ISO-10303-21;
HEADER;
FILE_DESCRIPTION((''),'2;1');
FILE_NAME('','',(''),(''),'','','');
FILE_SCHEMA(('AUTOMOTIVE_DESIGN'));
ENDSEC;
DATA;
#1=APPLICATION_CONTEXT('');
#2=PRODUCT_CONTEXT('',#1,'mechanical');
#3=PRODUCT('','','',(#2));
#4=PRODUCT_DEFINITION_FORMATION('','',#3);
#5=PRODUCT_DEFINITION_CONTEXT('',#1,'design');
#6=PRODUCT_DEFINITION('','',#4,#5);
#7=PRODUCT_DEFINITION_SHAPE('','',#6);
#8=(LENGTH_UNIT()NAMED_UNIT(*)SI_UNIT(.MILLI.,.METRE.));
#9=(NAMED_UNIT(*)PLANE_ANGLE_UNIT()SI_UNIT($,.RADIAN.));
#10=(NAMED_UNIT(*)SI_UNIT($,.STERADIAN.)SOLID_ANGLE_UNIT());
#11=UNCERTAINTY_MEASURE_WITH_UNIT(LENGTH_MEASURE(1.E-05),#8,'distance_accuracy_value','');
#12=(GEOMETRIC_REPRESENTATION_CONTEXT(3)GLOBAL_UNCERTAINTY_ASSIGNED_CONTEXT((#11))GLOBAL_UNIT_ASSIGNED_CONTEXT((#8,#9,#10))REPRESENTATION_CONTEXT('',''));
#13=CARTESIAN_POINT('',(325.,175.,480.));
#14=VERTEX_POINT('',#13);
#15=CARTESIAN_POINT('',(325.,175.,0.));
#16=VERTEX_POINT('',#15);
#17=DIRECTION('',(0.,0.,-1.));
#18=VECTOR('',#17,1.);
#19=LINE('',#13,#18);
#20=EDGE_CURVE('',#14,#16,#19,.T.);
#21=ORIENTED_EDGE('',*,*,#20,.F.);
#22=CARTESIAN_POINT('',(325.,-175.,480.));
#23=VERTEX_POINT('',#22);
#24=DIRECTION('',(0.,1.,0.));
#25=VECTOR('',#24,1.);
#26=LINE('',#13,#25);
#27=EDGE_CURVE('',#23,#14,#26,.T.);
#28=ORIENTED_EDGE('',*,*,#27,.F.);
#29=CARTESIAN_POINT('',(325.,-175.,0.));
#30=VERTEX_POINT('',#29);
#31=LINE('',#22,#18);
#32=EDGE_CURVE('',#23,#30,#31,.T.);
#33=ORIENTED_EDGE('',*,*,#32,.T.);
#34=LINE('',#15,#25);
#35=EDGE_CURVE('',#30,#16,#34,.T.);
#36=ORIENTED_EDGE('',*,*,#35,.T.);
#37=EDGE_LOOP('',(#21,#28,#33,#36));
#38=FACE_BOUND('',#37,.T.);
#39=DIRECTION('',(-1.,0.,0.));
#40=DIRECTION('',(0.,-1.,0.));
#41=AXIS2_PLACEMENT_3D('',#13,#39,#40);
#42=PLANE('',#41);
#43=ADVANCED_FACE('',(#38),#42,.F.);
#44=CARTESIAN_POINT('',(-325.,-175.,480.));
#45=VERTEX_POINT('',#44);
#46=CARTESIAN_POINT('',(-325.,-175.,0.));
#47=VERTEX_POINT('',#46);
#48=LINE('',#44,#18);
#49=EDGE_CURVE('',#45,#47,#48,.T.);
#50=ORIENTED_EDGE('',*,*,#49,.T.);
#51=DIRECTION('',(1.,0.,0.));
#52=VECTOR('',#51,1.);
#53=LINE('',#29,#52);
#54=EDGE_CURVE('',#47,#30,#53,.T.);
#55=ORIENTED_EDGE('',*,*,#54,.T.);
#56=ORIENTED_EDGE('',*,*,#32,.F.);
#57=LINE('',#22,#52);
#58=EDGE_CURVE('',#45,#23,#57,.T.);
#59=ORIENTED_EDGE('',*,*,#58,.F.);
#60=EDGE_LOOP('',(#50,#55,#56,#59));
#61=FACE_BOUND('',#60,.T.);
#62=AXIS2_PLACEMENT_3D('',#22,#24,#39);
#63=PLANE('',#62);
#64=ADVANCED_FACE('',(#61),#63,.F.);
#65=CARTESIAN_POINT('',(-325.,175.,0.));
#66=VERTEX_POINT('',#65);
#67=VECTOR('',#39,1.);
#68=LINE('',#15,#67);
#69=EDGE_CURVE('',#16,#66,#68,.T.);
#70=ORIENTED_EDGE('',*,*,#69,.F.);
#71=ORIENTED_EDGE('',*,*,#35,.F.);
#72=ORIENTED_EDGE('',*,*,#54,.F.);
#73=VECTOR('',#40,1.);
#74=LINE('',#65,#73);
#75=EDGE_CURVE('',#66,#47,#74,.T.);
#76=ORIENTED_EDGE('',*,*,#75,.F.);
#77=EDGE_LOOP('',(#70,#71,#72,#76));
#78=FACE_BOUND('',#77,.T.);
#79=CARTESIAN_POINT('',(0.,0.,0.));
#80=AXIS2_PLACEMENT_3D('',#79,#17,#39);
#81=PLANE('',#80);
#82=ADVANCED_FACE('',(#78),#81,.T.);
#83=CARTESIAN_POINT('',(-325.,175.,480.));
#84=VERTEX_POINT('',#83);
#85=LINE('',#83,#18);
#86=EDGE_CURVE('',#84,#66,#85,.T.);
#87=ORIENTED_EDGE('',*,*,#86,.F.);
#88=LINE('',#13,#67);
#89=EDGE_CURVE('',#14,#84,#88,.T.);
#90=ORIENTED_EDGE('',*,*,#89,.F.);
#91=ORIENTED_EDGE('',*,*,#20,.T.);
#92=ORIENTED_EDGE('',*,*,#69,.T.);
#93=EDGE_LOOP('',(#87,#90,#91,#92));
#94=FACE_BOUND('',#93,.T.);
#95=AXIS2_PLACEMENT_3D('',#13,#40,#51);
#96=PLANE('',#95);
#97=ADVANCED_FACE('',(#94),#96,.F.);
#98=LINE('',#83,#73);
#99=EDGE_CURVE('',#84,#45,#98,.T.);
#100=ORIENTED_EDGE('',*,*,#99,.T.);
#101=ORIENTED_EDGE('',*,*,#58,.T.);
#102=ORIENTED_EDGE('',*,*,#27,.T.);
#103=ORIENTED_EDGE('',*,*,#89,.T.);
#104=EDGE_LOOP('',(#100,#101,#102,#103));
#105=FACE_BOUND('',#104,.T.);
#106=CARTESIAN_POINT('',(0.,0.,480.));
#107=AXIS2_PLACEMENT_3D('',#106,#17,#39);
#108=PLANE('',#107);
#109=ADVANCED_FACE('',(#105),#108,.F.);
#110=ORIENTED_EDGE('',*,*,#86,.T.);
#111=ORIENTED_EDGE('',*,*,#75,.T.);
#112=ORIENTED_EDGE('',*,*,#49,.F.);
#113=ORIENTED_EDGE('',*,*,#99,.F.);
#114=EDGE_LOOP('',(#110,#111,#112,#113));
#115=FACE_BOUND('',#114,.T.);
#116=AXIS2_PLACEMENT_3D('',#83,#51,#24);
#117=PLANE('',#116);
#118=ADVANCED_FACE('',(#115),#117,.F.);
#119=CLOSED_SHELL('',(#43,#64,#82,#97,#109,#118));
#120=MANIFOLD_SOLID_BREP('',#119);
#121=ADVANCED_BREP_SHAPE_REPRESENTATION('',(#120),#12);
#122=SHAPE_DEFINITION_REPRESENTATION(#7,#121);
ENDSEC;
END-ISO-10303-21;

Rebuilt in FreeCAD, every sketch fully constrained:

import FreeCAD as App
import Part
import Sketcher
from FreeCAD import Vector
Q = App.Units.Quantity


def add_polygon(sketch, points):
    """Adds a closed chain of lines whose ends are joined by coincident constraints."""
    first, n = sketch.GeometryCount, len(points)
    for a, b in zip(points, points[1:] + points[:1]):
        sketch.addGeometry(Part.LineSegment(App.Vector(*a, 0), App.Vector(*b, 0)), False)
    for i in range(n):
        sketch.addConstraint(Sketcher.Constraint("Coincident", first + i, 2, first + (i + 1) % n, 1))

doc = App.newDocument("Part")
params = doc.addObject("Spreadsheet::Sheet", "Params")
for row, (alias, value) in enumerate([
    ("sketch1_width", "650 mm"),
    ("sketch1_height", "350 mm"),
    ("pad1_length", "480 mm"),
], start=1):
    params.set(f"A{row}", alias)
    params.set(f"B{row}", "=" + value)
    params.setAlias(f"B{row}", alias)

body = doc.addObject("PartDesign::Body", "Body")

# Sketch on XY plane
sketch1 = doc.addObject("Sketcher::SketchObject", "Sketch")
body.addObject(sketch1)
sketch1.AttachmentSupport = (doc.XY_Plane, [""])
sketch1.MapMode = "FlatFace"
add_polygon(sketch1, [(-325, 175), (-325, -175), (325, -175), (325, 175)])  # lines 0-3
sketch1.addConstraint(Sketcher.Constraint("Vertical", 0))
sketch1.addConstraint(Sketcher.Constraint("Horizontal", 1))
sketch1.addConstraint(Sketcher.Constraint("Vertical", 2))
sketch1.addConstraint(Sketcher.Constraint("Horizontal", 3))
sketch1.addConstraint(Sketcher.Constraint("Symmetric", 0, 2, 2, 2, -1, 1))
sketch1.addConstraint(Sketcher.Constraint("DistanceX", 1, 1, 1, 2, Q("650 mm")))
sketch1.addConstraint(Sketcher.Constraint("DistanceY", 0, 2, 0, 1, Q("350 mm")))
sketch1.setExpression("Constraints[9]", "Params.sketch1_width")
sketch1.setExpression("Constraints[10]", "Params.sketch1_height")
pad1 = doc.addObject("PartDesign::Pad", "Pad")
body.addObject(pad1)
pad1.Profile = sketch1
pad1.setExpression("Length", "Params.pad1_length")

doc.recompute()
